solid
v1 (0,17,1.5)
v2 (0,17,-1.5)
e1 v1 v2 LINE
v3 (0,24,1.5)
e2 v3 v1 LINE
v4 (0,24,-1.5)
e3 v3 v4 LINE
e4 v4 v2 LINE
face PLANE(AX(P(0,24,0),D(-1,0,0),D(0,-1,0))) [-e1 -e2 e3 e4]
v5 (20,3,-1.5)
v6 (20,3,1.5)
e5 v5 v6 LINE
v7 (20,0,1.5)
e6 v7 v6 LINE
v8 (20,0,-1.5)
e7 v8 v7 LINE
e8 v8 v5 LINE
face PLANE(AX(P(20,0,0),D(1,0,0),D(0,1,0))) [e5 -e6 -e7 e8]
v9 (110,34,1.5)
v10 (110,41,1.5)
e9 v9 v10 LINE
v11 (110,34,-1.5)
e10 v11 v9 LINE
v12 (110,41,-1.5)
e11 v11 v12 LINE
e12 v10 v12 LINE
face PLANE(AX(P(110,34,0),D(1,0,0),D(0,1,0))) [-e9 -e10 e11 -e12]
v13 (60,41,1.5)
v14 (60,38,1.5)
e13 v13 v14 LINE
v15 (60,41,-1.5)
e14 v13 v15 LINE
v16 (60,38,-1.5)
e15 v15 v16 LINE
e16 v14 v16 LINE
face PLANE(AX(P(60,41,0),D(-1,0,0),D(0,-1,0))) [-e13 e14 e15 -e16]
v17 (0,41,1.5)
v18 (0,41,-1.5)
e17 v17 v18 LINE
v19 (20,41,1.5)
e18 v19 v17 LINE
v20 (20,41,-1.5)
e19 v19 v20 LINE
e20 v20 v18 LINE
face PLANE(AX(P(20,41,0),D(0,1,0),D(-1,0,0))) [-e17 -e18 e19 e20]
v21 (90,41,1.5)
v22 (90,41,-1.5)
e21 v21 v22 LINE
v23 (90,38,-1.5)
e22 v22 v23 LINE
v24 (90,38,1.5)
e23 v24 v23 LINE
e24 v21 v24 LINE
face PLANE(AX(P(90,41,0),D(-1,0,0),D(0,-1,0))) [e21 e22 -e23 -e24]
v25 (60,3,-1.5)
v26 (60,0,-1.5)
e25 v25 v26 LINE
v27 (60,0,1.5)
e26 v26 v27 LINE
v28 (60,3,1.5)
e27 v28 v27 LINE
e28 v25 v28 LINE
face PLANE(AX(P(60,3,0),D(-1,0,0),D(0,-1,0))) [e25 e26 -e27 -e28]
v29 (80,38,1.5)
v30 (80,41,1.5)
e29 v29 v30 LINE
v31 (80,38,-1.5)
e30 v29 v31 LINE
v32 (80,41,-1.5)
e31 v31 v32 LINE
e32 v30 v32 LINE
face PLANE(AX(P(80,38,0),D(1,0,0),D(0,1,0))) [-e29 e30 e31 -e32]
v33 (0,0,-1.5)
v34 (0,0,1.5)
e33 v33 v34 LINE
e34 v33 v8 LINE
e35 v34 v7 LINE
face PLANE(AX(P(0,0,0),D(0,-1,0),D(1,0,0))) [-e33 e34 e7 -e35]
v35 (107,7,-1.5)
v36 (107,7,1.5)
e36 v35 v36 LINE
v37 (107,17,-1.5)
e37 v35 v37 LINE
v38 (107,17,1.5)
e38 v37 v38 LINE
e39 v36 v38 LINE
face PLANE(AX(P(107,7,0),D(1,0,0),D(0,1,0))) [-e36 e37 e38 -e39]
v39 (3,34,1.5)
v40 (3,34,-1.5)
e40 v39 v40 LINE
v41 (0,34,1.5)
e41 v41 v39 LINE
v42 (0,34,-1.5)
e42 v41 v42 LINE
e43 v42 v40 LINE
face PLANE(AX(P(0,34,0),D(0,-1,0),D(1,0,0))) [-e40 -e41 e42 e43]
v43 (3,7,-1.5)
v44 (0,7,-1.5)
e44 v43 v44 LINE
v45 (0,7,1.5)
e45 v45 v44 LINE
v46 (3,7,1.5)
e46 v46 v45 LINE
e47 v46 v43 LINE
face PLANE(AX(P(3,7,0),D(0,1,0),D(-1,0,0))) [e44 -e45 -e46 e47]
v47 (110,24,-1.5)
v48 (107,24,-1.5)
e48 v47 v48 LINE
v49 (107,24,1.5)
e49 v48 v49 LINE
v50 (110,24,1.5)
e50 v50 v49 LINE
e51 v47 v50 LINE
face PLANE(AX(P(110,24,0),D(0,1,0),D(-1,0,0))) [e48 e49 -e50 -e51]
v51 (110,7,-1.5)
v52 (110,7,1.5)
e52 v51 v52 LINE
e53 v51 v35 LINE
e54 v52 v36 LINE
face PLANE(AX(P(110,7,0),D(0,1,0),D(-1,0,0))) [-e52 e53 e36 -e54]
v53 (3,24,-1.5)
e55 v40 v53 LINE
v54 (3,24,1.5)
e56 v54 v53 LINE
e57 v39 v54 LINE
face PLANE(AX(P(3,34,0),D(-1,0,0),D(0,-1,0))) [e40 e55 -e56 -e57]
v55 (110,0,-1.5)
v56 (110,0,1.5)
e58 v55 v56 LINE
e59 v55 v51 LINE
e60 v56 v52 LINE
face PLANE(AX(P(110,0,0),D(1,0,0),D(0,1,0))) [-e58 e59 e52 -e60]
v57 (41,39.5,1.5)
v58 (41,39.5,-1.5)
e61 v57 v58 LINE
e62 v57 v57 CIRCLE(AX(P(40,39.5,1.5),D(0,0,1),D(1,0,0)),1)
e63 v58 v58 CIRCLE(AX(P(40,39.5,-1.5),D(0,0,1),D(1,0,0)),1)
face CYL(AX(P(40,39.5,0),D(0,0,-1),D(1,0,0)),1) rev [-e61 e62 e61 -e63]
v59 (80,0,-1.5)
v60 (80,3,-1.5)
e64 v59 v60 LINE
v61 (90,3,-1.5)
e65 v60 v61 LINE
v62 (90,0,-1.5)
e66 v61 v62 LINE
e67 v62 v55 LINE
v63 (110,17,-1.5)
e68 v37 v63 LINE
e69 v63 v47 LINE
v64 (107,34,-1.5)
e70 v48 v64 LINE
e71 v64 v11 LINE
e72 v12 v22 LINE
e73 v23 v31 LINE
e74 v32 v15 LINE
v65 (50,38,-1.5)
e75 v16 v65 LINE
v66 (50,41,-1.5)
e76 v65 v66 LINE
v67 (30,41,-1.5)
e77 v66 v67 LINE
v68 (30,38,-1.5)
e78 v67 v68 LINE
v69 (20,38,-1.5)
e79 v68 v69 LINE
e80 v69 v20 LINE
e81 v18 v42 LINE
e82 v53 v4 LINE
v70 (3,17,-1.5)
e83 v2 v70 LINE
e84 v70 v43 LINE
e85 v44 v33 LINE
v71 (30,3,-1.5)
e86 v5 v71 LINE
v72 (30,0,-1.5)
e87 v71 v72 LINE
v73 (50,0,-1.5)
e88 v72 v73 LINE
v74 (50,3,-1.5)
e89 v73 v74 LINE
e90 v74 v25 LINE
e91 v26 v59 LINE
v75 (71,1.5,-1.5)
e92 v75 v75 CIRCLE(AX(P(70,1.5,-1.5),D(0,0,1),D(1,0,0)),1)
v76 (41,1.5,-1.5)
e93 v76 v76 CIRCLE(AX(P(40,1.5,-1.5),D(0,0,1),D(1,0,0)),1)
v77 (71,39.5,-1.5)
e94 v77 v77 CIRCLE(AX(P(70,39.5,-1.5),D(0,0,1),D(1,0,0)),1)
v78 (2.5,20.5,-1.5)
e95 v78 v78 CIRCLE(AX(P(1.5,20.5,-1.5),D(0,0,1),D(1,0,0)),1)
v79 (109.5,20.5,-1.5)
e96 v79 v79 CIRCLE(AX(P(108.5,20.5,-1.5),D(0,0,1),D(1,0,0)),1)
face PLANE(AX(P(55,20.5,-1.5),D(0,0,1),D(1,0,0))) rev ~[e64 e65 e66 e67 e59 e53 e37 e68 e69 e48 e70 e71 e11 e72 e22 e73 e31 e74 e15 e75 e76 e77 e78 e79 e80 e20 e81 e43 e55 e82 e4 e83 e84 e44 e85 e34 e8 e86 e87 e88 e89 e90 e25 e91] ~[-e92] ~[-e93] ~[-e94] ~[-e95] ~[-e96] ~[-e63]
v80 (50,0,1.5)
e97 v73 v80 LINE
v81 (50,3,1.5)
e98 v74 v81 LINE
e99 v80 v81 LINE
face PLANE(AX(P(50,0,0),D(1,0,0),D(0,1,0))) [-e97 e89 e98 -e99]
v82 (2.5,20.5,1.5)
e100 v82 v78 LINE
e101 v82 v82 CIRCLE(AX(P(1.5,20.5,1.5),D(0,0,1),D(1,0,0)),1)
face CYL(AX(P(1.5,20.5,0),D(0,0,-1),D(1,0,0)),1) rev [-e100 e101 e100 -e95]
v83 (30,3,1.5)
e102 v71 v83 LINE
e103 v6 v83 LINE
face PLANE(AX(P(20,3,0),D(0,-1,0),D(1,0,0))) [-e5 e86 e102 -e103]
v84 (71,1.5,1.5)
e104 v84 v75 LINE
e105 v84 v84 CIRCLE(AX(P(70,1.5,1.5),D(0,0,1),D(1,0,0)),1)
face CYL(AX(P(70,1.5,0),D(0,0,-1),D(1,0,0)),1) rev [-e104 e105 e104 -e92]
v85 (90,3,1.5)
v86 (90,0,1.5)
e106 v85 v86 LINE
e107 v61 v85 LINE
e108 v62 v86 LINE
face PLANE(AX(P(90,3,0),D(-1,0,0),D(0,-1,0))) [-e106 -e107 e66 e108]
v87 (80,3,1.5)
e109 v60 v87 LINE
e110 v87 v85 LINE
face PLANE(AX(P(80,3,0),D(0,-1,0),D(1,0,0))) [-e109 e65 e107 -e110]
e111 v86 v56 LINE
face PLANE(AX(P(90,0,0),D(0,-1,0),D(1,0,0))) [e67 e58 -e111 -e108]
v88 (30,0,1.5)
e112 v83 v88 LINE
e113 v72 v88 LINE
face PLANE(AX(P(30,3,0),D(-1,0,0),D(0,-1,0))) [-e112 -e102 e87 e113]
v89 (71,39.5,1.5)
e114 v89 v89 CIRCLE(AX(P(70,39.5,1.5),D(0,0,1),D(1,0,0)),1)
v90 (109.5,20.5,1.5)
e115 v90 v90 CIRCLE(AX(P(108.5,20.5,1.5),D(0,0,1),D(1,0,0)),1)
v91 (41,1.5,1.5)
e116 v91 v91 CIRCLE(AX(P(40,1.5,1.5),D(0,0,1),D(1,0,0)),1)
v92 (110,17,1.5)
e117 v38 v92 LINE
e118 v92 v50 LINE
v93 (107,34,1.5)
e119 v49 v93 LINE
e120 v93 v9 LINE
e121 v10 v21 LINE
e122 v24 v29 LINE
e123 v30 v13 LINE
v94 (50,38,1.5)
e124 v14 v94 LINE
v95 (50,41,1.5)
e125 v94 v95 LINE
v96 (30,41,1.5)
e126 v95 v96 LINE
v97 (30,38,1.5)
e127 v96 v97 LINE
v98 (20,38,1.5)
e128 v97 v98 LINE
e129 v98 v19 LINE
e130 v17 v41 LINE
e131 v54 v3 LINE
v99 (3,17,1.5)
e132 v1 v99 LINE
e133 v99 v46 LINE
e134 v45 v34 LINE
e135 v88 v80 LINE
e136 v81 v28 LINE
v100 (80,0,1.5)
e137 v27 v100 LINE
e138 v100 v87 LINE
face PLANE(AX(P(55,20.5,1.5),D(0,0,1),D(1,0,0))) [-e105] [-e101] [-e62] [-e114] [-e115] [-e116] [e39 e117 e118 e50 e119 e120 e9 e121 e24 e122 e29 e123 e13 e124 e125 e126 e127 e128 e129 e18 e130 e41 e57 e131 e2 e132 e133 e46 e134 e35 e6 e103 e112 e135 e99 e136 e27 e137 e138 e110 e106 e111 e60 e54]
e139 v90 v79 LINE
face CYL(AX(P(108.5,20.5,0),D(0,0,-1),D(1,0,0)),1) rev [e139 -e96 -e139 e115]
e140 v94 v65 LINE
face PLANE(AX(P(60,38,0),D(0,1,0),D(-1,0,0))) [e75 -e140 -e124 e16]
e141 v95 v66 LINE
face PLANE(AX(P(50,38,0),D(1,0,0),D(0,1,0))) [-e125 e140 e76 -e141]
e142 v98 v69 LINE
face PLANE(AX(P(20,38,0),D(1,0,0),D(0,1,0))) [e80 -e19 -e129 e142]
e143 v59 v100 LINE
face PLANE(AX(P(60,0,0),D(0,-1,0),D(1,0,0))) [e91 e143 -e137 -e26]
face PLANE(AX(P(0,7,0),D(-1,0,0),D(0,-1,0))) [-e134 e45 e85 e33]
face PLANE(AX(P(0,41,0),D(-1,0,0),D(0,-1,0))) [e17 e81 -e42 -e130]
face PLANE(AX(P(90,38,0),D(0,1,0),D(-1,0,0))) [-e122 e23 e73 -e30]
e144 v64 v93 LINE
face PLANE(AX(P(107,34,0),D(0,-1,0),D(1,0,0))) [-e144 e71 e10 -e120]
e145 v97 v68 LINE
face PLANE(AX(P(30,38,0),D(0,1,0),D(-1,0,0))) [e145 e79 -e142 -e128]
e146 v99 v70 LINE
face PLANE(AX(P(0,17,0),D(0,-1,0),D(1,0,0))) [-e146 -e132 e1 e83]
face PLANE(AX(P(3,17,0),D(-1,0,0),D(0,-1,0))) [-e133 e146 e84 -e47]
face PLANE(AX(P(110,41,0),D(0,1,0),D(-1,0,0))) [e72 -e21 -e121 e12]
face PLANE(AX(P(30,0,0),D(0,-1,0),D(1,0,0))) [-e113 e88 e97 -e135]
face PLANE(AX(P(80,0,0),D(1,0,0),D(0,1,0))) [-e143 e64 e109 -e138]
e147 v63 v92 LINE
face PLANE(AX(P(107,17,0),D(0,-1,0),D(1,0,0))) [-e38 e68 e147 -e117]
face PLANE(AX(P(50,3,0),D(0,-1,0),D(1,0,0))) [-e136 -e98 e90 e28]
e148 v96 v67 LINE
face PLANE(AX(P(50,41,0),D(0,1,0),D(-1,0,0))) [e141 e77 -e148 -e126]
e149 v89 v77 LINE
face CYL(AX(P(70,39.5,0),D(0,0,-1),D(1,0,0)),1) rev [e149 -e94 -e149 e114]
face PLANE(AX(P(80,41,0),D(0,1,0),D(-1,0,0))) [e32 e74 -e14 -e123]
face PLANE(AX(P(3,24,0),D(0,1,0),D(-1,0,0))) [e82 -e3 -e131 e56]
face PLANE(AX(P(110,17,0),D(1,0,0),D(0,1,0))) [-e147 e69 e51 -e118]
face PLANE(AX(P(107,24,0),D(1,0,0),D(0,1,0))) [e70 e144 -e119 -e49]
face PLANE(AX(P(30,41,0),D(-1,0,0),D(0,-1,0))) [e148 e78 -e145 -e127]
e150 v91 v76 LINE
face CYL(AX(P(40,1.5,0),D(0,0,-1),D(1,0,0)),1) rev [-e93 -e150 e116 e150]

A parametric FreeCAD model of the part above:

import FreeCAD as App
import Part
import Sketcher
Q = App.Units.Quantity


def add_polygon(sketch, points):
    """Adds a closed chain of lines whose ends are joined by coincident constraints."""
    first, n = sketch.GeometryCount, len(points)
    for a, b in zip(points, points[1:] + points[:1]):
        sketch.addGeometry(Part.LineSegment(App.Vector(*a, 0), App.Vector(*b, 0)), False)
    for i in range(n):
        sketch.addConstraint(Sketcher.Constraint("Coincident", first + i, 2, first + (i + 1) % n, 1))

doc = App.newDocument("Part")
params = doc.addObject("Spreadsheet::Sheet", "Params")
for row, (alias, value) in enumerate([
    ("sketch1_diameter", "2 mm"),
    ("sketch1_width", "20 mm"),
    ("sketch1_width2", "10 mm"),
    ("sketch1_width3", "3 mm"),
    ("sketch1_height", "7 mm"),
    ("pad1_length", "3 mm"),
], start=1):
    params.set(f"A{row}", alias)
    params.set(f"B{row}", "=" + value)
    params.setAlias(f"B{row}", alias)

body = doc.addObject("PartDesign::Body", "Body")

sketch1 = body.newObject("Sketcher::SketchObject", "Sketch")
sketch1.AttachmentSupport = (doc.getObject("XY_Plane"), [""])
sketch1.MapMode = "FlatFace"
add_polygon(sketch1, [(0, 7), (0, 0), (20, 0), (20, 3), (30, 3), (30, 0), (50, 0), (50, 3), (60, 3), (60, 0), (80, 0), (80, 3), (90, 3), (90, 0), (110, 0), (110, 7), (107, 7), (107, 17), (110, 17), (110, 24), (107, 24), (107, 34), (110, 34), (110, 41), (90, 41), (90, 38), (80, 38), (80, 41), (60, 41), (60, 38), (50, 38), (50, 41), (30, 41), (30, 38), (20, 38), (20, 41), (0, 41), (0, 34), (3, 34), (3, 24), (0, 24), (0, 17), (3, 17), (3, 7)])
sketch1.addGeometry(Part.Circle(App.Vector(40, 1.5, 0), App.Vector(0, 0, 1), 1), False)
sketch1.addGeometry(Part.Circle(App.Vector(70, 1.5, 0), App.Vector(0, 0, 1), 1), False)
sketch1.addGeometry(Part.Circle(App.Vector(1.5, 20.5, 0), App.Vector(0, 0, 1), 1), False)
sketch1.addGeometry(Part.Circle(App.Vector(40, 39.5, 0), App.Vector(0, 0, 1), 1), False)
sketch1.addGeometry(Part.Circle(App.Vector(108.5, 20.5, 0), App.Vector(0, 0, 1), 1), False)
sketch1.addGeometry(Part.Circle(App.Vector(70, 39.5, 0), App.Vector(0, 0, 1), 1), False)
sketch1.addConstraint(Sketcher.Constraint("Vertical", 0))
sketch1.addConstraint(Sketcher.Constraint("Horizontal", 1))
sketch1.addConstraint(Sketcher.Constraint("Vertical", 2))
sketch1.addConstraint(Sketcher.Constraint("Horizontal", 3))
sketch1.addConstraint(Sketcher.Constraint("Vertical", 4))
sketch1.addConstraint(Sketcher.Constraint("Horizontal", 5))
sketch1.addConstraint(Sketcher.Constraint("Vertical", 6))
sketch1.addConstraint(Sketcher.Constraint("Horizontal", 7))
sketch1.addConstraint(Sketcher.Constraint("Vertical", 8))
sketch1.addConstraint(Sketcher.Constraint("Horizontal", 9))
sketch1.addConstraint(Sketcher.Constraint("Vertical", 10))
sketch1.addConstraint(Sketcher.Constraint("Horizontal", 11))
sketch1.addConstraint(Sketcher.Constraint("Vertical", 12))
sketch1.addConstraint(Sketcher.Constraint("Horizontal", 13))
sketch1.addConstraint(Sketcher.Constraint("Vertical", 14))
sketch1.addConstraint(Sketcher.Constraint("Horizontal", 15))
sketch1.addConstraint(Sketcher.Constraint("Vertical", 16))
sketch1.addConstraint(Sketcher.Constraint("Horizontal", 17))
sketch1.addConstraint(Sketcher.Constraint("Vertical", 18))
sketch1.addConstraint(Sketcher.Constraint("Horizontal", 19))
sketch1.addConstraint(Sketcher.Constraint("Vertical", 20))
sketch1.addConstraint(Sketcher.Constraint("Horizontal", 21))
sketch1.addConstraint(Sketcher.Constraint("Vertical", 22))
sketch1.addConstraint(Sketcher.Constraint("Horizontal", 23))
sketch1.addConstraint(Sketcher.Constraint("Vertical", 24))
sketch1.addConstraint(Sketcher.Constraint("Horizontal", 25))
sketch1.addConstraint(Sketcher.Constraint("Vertical", 26))
sketch1.addConstraint(Sketcher.Constraint("Horizontal", 27))
sketch1.addConstraint(Sketcher.Constraint("Vertical", 28))
sketch1.addConstraint(Sketcher.Constraint("Horizontal", 29))
sketch1.addConstraint(Sketcher.Constraint("Vertical", 30))
sketch1.addConstraint(Sketcher.Constraint("Horizontal", 31))
sketch1.addConstraint(Sketcher.Constraint("Vertical", 32))
sketch1.addConstraint(Sketcher.Constraint("Horizontal", 33))
sketch1.addConstraint(Sketcher.Constraint("Vertical", 34))
sketch1.addConstraint(Sketcher.Constraint("Horizontal", 35))
sketch1.addConstraint(Sketcher.Constraint("Vertical", 36))
sketch1.addConstraint(Sketcher.Constraint("Horizontal", 37))
sketch1.addConstraint(Sketcher.Constraint("Vertical", 38))
sketch1.addConstraint(Sketcher.Constraint("Horizontal", 39))
sketch1.addConstraint(Sketcher.Constraint("Vertical", 40))
sketch1.addConstraint(Sketcher.Constraint("Horizontal", 41))
sketch1.addConstraint(Sketcher.Constraint("Vertical", 42))
sketch1.addConstraint(Sketcher.Constraint("Horizontal", 43))
sketch1.addConstraint(Sketcher.Constraint("Coincident", 0, 2, -1, 1))
sketch1.addConstraint(Sketcher.Constraint("Equal", 44, 45))
sketch1.addConstraint(Sketcher.Constraint("Equal", 45, 46))
sketch1.addConstraint(Sketcher.Constraint("Equal", 46, 47))
sketch1.addConstraint(Sketcher.Constraint("Equal", 47, 48))
sketch1.addConstraint(Sketcher.Constraint("Equal", 48, 49))
sketch1.addConstraint(Sketcher.Constraint("PointOnObject", 4, 2, -1))
sketch1.addConstraint(Sketcher.Constraint("PointOnObject", 8, 2, -1))
sketch1.addConstraint(Sketcher.Constraint("PointOnObject", 12, 2, -1))
sketch1.addConstraint(Sketcher.Constraint("PointOnObject", 35, 2, -2))
sketch1.addConstraint(Sketcher.Constraint("PointOnObject", 39, 2, -2))
sketch1.addConstraint(Sketcher.Constraint("Horizontal", 44, 3, 45, 3))
sketch1.addConstraint(Sketcher.Constraint("Horizontal", 46, 3, 48, 3))
sketch1.addConstraint(Sketcher.Constraint("Horizontal", 47, 3, 49, 3))
sketch1.addConstraint(Sketcher.Constraint("Horizontal", 3, 2, 6, 2))
sketch1.addConstraint(Sketcher.Constraint("Horizontal", 7, 2, 10, 2))
sketch1.addConstraint(Sketcher.Constraint("Horizontal", 23, 2, 26, 2))
sketch1.addConstraint(Sketcher.Constraint("Horizontal", 25, 2, 28, 2))
sketch1.addConstraint(Sketcher.Constraint("Horizontal", 27, 2, 30, 2))
sketch1.addConstraint(Sketcher.Constraint("Horizontal", 29, 2, 32, 2))
sketch1.addConstraint(Sketcher.Constraint("Horizontal", 31, 2, 34, 2))
sketch1.addConstraint(Sketcher.Constraint("Horizontal", 21, 2, 36, 2))
sketch1.addConstraint(Sketcher.Constraint("Horizontal", 19, 2, 38, 2))
sketch1.addConstraint(Sketcher.Constraint("Horizontal", 17, 2, 40, 2))
sketch1.addConstraint(Sketcher.Constraint("Horizontal", 15, 2, 42, 2))
sketch1.addConstraint(Sketcher.Constraint("Vertical", 44, 3, 47, 3))
sketch1.addConstraint(Sketcher.Constraint("Vertical", 45, 3, 49, 3))
sketch1.addConstraint(Sketcher.Constraint("Vertical", 14, 2, 17, 2))
sketch1.addConstraint(Sketcher.Constraint("Vertical", 16, 2, 19, 2))
sketch1.addConstraint(Sketcher.Constraint("Vertical", 18, 2, 21, 2))
sketch1.addConstraint(Sketcher.Constraint("Vertical", 12, 2, 23, 2))
sketch1.addConstraint(Sketcher.Constraint("Vertical", 10, 2, 25, 2))
sketch1.addConstraint(Sketcher.Constraint("Vertical", 8, 2, 27, 2))
sketch1.addConstraint(Sketcher.Constraint("Vertical", 6, 2, 29, 2))
sketch1.addConstraint(Sketcher.Constraint("Vertical", 4, 2, 31, 2))
sketch1.addConstraint(Sketcher.Constraint("Vertical", 2, 2, 33, 2))
sketch1.addConstraint(Sketcher.Constraint("Vertical", 38, 2, 41, 2))
sketch1.addConstraint(Sketcher.Constraint("Equal", 1, 5))
sketch1.addConstraint(Sketcher.Constraint("Equal", 3, 7))
sketch1.addConstraint(Sketcher.Constraint("Equal", 5, 9))
sketch1.addConstraint(Sketcher.Constraint("Equal", 7, 11))
sketch1.addConstraint(Sketcher.Constraint("Equal", 9, 13))
sketch1.addConstraint(Sketcher.Constraint("Equal", 21, 37))
sketch1.addConstraint(Sketcher.Constraint("Equal", 43, 2))
sketch1.addConstraint(Sketcher.Constraint("Equal", 33, 16))
sketch1.addConstraint(Sketcher.Constraint("Equal", 14, 18))
sketch1.addConstraint(Sketcher.Constraint("Equal", 16, 20))
sketch1.addConstraint(Sketcher.Constraint("Equal", 18, 22))
sketch1.addConstraint(Sketcher.Constraint("Equal", 12, 24))
sketch1.addConstraint(Sketcher.Constraint("Diameter", 44, Q("2 mm")))
sketch1.addConstraint(Sketcher.Constraint("DistanceX", 1, 1, 1, 2, Q("20 mm")))
sketch1.addConstraint(Sketcher.Constraint("DistanceX", 3, 1, 3, 2, Q("10 mm")))
sketch1.addConstraint(Sketcher.Constraint("DistanceX", 15, 2, 15, 1, Q("3 mm")))
sketch1.addConstraint(Sketcher.Constraint("DistanceY", 0, 2, 0, 1, Q("7 mm")))
sketch1.addConstraint(Sketcher.Constraint("DistanceX", -1, 1, 44, 3, Q("40 mm")))
sketch1.addConstraint(Sketcher.Constraint("DistanceX", -1, 1, 45, 3, Q("70 mm")))
sketch1.addConstraint(Sketcher.Constraint("DistanceY", 44, 3, 46, 3, Q("19 mm")))
sketch1.addConstraint(Sketcher.Constraint("DistanceY", 44, 3, 47, 3, Q("38 mm")))
sketch1.addConstraint(Sketcher.Constraint("DistanceX", 46, 3, 48, 3, Q("107 mm")))
sketch1.addConstraint(Sketcher.Constraint("DistanceY", -1, 1, 44, 3, Q("1.5 mm")))
sketch1.addConstraint(Sketcher.Constraint("DistanceX", -1, 1, 46, 3, Q("1.5 mm")))
sketch1.setExpression("Constraints[137]", "Params.sketch1_diameter")
sketch1.setExpression("Constraints[138]", "Params.sketch1_width")
sketch1.setExpression("Constraints[139]", "Params.sketch1_width2")
sketch1.setExpression("Constraints[140]", "Params.sketch1_width3")
sketch1.setExpression("Constraints[141]", "Params.sketch1_height")
pad1 = body.newObject("PartDesign::Pad", "Pad")
pad1.Profile = sketch1
pad1.setExpression("Length", "Params.pad1_length")
pad1.Midplane = True

doc.recompute()
